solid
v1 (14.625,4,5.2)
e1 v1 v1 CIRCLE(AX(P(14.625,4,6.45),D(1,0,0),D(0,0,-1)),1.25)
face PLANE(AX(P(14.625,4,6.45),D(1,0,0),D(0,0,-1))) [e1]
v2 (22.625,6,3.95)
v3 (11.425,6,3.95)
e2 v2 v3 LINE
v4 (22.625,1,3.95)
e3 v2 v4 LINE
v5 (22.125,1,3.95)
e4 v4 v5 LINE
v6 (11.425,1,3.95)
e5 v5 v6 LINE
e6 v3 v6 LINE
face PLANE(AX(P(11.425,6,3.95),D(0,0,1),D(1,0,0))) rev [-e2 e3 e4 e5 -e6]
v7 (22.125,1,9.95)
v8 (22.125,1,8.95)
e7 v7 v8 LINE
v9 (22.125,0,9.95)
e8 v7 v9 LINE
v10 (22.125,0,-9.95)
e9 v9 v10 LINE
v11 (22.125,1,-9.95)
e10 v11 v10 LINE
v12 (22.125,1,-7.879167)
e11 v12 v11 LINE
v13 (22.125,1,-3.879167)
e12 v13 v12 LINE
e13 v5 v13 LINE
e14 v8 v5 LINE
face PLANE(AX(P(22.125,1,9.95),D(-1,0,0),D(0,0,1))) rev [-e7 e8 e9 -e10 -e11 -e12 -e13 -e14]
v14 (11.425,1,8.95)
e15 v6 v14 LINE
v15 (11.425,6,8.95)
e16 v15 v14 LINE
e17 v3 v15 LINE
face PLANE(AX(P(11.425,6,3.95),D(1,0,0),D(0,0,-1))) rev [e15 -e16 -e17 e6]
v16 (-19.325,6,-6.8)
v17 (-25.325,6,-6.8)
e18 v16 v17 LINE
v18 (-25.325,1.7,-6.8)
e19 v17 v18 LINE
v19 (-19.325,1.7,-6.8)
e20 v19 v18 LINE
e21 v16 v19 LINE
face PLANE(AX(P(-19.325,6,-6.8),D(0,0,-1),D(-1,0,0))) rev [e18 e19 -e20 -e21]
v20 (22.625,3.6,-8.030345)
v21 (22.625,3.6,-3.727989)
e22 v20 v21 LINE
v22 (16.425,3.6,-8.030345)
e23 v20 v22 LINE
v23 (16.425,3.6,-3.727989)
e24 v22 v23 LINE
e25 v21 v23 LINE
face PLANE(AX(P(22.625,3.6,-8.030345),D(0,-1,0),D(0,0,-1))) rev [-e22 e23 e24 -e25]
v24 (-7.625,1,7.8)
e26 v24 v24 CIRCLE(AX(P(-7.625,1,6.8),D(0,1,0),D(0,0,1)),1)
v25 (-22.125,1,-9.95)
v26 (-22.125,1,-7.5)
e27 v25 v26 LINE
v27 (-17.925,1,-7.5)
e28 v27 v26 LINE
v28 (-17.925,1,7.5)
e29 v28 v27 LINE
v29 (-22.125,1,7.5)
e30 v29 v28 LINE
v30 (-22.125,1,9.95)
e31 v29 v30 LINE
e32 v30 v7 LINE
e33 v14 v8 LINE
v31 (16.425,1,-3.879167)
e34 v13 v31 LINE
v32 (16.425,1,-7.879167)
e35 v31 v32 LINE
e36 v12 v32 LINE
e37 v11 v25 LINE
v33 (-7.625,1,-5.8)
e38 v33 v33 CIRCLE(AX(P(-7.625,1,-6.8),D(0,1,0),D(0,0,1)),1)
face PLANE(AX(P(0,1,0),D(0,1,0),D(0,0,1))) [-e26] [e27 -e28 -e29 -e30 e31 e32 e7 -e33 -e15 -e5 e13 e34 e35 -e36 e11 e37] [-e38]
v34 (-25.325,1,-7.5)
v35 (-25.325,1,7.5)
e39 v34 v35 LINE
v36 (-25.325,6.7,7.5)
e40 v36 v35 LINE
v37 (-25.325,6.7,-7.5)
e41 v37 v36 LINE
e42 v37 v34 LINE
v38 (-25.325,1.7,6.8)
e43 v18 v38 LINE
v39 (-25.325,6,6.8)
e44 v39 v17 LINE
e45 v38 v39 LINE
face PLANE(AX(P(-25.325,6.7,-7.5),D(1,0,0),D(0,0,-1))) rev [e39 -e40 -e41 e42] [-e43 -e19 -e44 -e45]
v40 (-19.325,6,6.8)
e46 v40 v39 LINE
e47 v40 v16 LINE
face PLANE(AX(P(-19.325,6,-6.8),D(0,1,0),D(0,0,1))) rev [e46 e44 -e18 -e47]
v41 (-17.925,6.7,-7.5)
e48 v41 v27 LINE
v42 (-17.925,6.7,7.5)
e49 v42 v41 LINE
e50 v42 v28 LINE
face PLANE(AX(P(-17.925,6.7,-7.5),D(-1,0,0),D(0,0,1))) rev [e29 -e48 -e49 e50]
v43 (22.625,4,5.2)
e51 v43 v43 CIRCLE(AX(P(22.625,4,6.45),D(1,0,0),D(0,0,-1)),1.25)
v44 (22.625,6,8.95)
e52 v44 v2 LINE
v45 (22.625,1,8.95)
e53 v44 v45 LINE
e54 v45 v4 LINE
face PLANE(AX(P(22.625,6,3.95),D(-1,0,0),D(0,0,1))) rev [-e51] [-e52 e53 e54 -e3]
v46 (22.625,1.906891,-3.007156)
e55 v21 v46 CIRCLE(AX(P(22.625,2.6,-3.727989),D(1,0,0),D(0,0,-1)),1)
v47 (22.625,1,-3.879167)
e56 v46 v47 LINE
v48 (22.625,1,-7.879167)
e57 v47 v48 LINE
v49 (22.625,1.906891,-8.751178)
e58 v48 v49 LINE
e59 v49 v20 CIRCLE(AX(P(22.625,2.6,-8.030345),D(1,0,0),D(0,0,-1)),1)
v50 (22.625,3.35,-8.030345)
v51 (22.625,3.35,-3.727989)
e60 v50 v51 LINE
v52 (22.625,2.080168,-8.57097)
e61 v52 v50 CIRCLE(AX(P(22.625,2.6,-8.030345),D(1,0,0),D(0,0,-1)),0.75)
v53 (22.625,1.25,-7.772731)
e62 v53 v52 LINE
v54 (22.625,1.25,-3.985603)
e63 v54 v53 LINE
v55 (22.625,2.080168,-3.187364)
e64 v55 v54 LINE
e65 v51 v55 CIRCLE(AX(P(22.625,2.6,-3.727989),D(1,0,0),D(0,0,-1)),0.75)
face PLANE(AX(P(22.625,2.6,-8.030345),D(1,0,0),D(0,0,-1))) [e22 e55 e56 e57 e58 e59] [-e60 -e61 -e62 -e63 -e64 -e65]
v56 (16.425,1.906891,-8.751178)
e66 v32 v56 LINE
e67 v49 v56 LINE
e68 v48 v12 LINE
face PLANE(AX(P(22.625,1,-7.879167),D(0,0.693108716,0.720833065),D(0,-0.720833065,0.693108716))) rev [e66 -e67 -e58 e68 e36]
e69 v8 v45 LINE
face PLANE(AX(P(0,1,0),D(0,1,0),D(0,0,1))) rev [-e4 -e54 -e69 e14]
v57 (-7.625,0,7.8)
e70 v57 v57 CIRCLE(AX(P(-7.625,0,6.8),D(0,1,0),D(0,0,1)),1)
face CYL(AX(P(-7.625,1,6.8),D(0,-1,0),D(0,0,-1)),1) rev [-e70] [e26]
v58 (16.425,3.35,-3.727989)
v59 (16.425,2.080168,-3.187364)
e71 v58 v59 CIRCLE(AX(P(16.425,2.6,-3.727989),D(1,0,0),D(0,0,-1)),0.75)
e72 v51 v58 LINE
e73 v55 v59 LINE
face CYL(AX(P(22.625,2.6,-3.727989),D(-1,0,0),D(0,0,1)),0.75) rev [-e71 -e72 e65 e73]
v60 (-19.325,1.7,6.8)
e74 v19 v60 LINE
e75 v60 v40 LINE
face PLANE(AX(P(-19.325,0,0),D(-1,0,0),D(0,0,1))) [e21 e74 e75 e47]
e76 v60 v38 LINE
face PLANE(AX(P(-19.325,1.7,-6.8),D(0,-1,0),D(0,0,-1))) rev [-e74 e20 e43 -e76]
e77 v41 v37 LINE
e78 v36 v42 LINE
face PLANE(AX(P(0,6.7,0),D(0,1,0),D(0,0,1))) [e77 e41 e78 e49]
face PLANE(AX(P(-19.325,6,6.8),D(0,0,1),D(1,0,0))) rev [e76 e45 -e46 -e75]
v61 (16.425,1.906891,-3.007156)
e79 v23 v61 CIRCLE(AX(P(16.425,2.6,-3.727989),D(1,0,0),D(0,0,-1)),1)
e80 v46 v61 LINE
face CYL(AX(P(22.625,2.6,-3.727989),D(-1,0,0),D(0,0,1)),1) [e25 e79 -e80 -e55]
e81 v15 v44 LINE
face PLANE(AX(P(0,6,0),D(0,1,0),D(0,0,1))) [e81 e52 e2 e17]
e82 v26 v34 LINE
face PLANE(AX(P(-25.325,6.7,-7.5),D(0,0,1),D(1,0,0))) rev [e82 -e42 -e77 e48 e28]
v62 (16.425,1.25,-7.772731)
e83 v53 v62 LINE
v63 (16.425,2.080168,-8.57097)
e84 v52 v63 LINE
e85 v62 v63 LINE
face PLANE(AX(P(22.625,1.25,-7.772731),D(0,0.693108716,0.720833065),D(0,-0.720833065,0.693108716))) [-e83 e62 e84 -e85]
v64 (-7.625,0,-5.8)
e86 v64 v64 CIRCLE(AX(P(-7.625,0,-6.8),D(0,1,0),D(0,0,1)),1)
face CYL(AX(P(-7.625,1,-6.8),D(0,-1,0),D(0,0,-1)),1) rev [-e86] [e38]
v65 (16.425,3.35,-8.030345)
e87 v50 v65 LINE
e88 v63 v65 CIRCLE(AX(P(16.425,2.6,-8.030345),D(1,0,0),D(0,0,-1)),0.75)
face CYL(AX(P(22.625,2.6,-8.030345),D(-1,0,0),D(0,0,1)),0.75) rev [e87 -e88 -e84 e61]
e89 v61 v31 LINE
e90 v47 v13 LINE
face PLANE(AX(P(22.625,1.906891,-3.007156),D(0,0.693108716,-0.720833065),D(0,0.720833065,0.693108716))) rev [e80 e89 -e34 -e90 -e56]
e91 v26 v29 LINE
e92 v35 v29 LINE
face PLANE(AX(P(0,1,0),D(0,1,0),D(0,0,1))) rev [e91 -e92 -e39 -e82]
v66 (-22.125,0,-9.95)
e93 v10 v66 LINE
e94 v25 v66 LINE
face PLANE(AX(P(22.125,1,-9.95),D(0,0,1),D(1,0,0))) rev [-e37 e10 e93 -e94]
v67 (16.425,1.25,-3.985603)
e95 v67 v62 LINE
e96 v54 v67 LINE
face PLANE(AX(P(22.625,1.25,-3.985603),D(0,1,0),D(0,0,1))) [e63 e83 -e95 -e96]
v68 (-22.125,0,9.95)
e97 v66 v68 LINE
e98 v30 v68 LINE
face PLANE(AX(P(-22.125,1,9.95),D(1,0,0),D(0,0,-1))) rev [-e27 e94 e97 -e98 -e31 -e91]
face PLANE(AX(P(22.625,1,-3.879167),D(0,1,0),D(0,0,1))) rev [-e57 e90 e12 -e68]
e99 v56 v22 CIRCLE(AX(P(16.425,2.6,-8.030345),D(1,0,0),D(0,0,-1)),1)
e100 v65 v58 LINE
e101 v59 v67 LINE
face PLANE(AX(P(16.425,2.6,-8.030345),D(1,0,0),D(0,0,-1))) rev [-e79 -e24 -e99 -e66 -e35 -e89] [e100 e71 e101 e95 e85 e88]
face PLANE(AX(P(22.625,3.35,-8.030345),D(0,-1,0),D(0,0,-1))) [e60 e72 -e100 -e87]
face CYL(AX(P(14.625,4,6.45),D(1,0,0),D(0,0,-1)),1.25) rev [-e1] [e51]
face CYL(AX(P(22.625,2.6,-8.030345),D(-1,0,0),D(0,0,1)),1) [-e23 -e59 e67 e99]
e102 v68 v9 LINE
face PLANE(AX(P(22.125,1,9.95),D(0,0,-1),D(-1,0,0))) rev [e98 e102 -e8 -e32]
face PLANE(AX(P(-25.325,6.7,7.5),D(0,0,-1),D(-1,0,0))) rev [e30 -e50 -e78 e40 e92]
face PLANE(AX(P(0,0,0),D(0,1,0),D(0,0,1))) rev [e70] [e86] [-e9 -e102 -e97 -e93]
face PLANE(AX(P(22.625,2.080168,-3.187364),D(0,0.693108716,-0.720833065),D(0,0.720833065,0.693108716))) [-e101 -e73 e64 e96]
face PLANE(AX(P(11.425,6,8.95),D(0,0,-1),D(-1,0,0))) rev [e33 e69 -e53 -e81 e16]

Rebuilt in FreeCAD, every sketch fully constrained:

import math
import FreeCAD as App
import Part
import Sketcher

doc = App.newDocument("Part")
params = doc.addObject("Spreadsheet::Sheet", "Params")
for row, (alias, value) in enumerate([
    ("sketch1_diameter", "2 mm"),
    ("sketch1_height", "19.9 mm"),
    ("sketch1_width", "44.25 mm"),
    ("pad1_length", "1 mm"),
    ("sketch2_height", "15 mm"),
    ("sketch2_width", "7.4 mm"),
    ("pad2_length", "5.7 mm"),
    ("sketch3_width", "4.3 mm"),
    ("sketch3_height", "13.6 mm"),
    ("pocket1_length", "6 mm"),
    ("sketch4_height", "5 mm"),
    ("sketch4_width", "11.2 mm"),
    ("pad3_length", "5 mm"),
    ("sketch5_diameter", "2.5 mm"),
    ("pocket2_length", "8 mm"),
    ("sketch6_radius", "1 mm"),
    ("sketch6_height", "4 mm"),
    ("sketch6_radius2", "0.75 mm"),
    ("pad4_length", "0.5 mm"),
    ("pad4_length2", "5.7 mm"),
], start=1):
    params.set(f"A{row}", alias)
    params.set(f"B{row}", "=" + value)
    params.setAlias(f"B{row}", alias)

body = doc.addObject("PartDesign::Body", "Body")

sketch1 = body.newObject("Sketcher::SketchObject", "Sketch")
sketch1.AttachmentSupport = (doc.getObject("XZ_Plane"), [""])
sketch1.MapMode = "FlatFace"
sketch1.addGeometry(Part.LineSegment(App.Vector(-22.1, -9.9, 0), App.Vector(-22.1, 9.9, 0)), False)
sketch1.addGeometry(Part.LineSegment(App.Vector(-22.1, 9.9, 0), App.Vector(22.1, 9.9, 0)), False)
sketch1.addGeometry(Part.LineSegment(App.Vector(22.1, 9.9, 0), App.Vector(22.1, -9.9, 0)), False)
sketch1.addGeometry(Part.LineSegment(App.Vector(22.1, -9.9, 0), App.Vector(-22.1, -9.9, 0)), False)
sketch1.addGeometry(Part.Circle(App.Vector(-7.6, 6.8, 0), App.Vector(0, 0, 1), 1), False)
sketch1.addGeometry(Part.Circle(App.Vector(-7.6, -6.8, 0), App.Vector(0, 0, 1), 1), False)
sketch1.addConstraint(Sketcher.Constraint("Coincident", 0, 2, 1, 1))
sketch1.addConstraint(Sketcher.Constraint("Coincident", 1, 2, 2, 1))
sketch1.addConstraint(Sketcher.Constraint("Coincident", 2, 2, 3, 1))
sketch1.addConstraint(Sketcher.Constraint("Coincident", 3, 2, 0, 1))
sketch1.addConstraint(Sketcher.Constraint("Vertical", 0))
sketch1.addConstraint(Sketcher.Constraint("Horizontal", 1))
sketch1.addConstraint(Sketcher.Constraint("Vertical", 2))
sketch1.addConstraint(Sketcher.Constraint("Horizontal", 3))
sketch1.addConstraint(Sketcher.Constraint("Equal", 4, 5))
sketch1.addConstraint(Sketcher.Constraint("Symmetric", 0, 2, 2, 2, -1, 1))
sketch1.addConstraint(Sketcher.Constraint("Symmetric", 4, 3, 5, 3, -1))
sketch1.addConstraint(Sketcher.Constraint("Diameter", 4, 2.0))
sketch1.addConstraint(Sketcher.Constraint("DistanceY", 0, 1, 0, 2, 19.9))
sketch1.addConstraint(Sketcher.Constraint("DistanceX", 1, 1, 1, 2, 44.25))
sketch1.addConstraint(Sketcher.Constraint("DistanceY", -1, 1, 4, 3, 6.8))
sketch1.addConstraint(Sketcher.Constraint("DistanceX", 0, 2, 4, 3, 14.5))
sketch1.setExpression("Constraints[11]", "Params.sketch1_diameter")
sketch1.setExpression("Constraints[12]", "Params.sketch1_height")
sketch1.setExpression("Constraints[13]", "Params.sketch1_width")
pad1 = body.newObject("PartDesign::Pad", "Pad")
pad1.Profile = sketch1
pad1.setExpression("Length", "Params.pad1_length")
pad1.Reversed = True

sketch2 = body.newObject("Sketcher::SketchObject", "Sketch001")
sketch2.AttachmentSupport = (doc.getObject("XZ_Plane"), [""])
sketch2.MapMode = "FlatFace"
sketch2.AttachmentOffset = App.Placement(App.Vector(0, 0, -1), App.Rotation())
sketch2.addGeometry(Part.LineSegment(App.Vector(-25, -8, 0), App.Vector(-25, 8, 0)), False)
sketch2.addGeometry(Part.LineSegment(App.Vector(-25, 8, 0), App.Vector(-18, 8, 0)), False)
sketch2.addGeometry(Part.LineSegment(App.Vector(-18, 8, 0), App.Vector(-18, -8, 0)), False)
sketch2.addGeometry(Part.LineSegment(App.Vector(-18, -8, 0), App.Vector(-25, -8, 0)), False)
sketch2.addConstraint(Sketcher.Constraint("Coincident", 0, 2, 1, 1))
sketch2.addConstraint(Sketcher.Constraint("Coincident", 1, 2, 2, 1))
sketch2.addConstraint(Sketcher.Constraint("Coincident", 2, 2, 3, 1))
sketch2.addConstraint(Sketcher.Constraint("Coincident", 3, 2, 0, 1))
sketch2.addConstraint(Sketcher.Constraint("Vertical", 0))
sketch2.addConstraint(Sketcher.Constraint("Horizontal", 1))
sketch2.addConstraint(Sketcher.Constraint("Vertical", 2))
sketch2.addConstraint(Sketcher.Constraint("Horizontal", 3))
sketch2.addConstraint(Sketcher.Constraint("DistanceY", 0, 1, 0, 2, 15.0))
sketch2.addConstraint(Sketcher.Constraint("DistanceX", 1, 1, 1, 2, 7.4))
sketch2.addConstraint(Sketcher.Constraint("DistanceY", -1, 1, 0, 2, 7.5))
sketch2.addConstraint(Sketcher.Constraint("DistanceX", 0, 2, -1, 1, 25.325))
sketch2.setExpression("Constraints[8]", "Params.sketch2_height")
sketch2.setExpression("Constraints[9]", "Params.sketch2_width")
pad2 = body.newObject("PartDesign::Pad", "Pad001")
pad2.Profile = sketch2
pad2.setExpression("Length", "Params.pad2_length")
pad2.Reversed = True

sketch3 = body.newObject("Sketcher::SketchObject", "Sketch002")
sketch3.AttachmentSupport = (doc.getObject("YZ_Plane"), [""])
sketch3.MapMode = "FlatFace"
sketch3.AttachmentOffset = App.Placement(App.Vector(0, 0, -25.325), App.Rotation())
sketch3.addGeometry(Part.LineSegment(App.Vector(6, -6.8, 0), App.Vector(1.7, -6.8, 0)), False)
sketch3.addGeometry(Part.LineSegment(App.Vector(1.7, -6.8, 0), App.Vector(1.7, 6.8, 0)), False)
sketch3.addGeometry(Part.LineSegment(App.Vector(1.7, 6.8, 0), App.Vector(6, 6.8, 0)), False)
sketch3.addGeometry(Part.LineSegment(App.Vector(6, 6.8, 0), App.Vector(6, -6.8, 0)), False)
sketch3.addConstraint(Sketcher.Constraint("Coincident", 0, 2, 1, 1))
sketch3.addConstraint(Sketcher.Constraint("Coincident", 1, 2, 2, 1))
sketch3.addConstraint(Sketcher.Constraint("Coincident", 2, 2, 3, 1))
sketch3.addConstraint(Sketcher.Constraint("Coincident", 3, 2, 0, 1))
sketch3.addConstraint(Sketcher.Constraint("Horizontal", 0))
sketch3.addConstraint(Sketcher.Constraint("Vertical", 1))
sketch3.addConstraint(Sketcher.Constraint("Horizontal", 2))
sketch3.addConstraint(Sketcher.Constraint("Vertical", 3))
sketch3.addConstraint(Sketcher.Constraint("DistanceX", 0, 2, 0, 1, 4.3))
sketch3.addConstraint(Sketcher.Constraint("DistanceY", 1, 1, 1, 2, 13.6))
sketch3.addConstraint(Sketcher.Constraint("DistanceX", -1, 1, 2, 2, 6.0))
sketch3.addConstraint(Sketcher.Constraint("DistanceY", 0, 2, -1, 1, 6.8))
sketch3.setExpression("Constraints[8]", "Params.sketch3_width")
sketch3.setExpression("Constraints[9]", "Params.sketch3_height")
pocket1 = body.newObject("PartDesign::Pocket", "Pocket")
pocket1.Profile = sketch3
pocket1.setExpression("Length", "Params.pocket1_length")
pocket1.Reversed = True

sketch4 = body.newObject("Sketcher::SketchObject", "Sketch003")
sketch4.AttachmentSupport = (doc.getObject("XZ_Plane"), [""])
sketch4.MapMode = "FlatFace"
sketch4.AttachmentOffset = App.Placement(App.Vector(0, 0, -1), App.Rotation())
sketch4.addGeometry(Part.LineSegment(App.Vector(11.4, 4, 0), App.Vector(11.4, 8.9, 0)), False)
sketch4.addGeometry(Part.LineSegment(App.Vector(11.4, 8.9, 0), App.Vector(22.6, 8.9, 0)), False)
sketch4.addGeometry(Part.LineSegment(App.Vector(22.6, 8.9, 0), App.Vector(22.6, 4, 0)), False)
sketch4.addGeometry(Part.LineSegment(App.Vector(22.6, 4, 0), App.Vector(11.4, 4, 0)), False)
sketch4.addConstraint(Sketcher.Constraint("Coincident", 0, 2, 1, 1))
sketch4.addConstraint(Sketcher.Constraint("Coincident", 1, 2, 2, 1))
sketch4.addConstraint(Sketcher.Constraint("Coincident", 2, 2, 3, 1))
sketch4.addConstraint(Sketcher.Constraint("Coincident", 3, 2, 0, 1))
sketch4.addConstraint(Sketcher.Constraint("Vertical", 0))
sketch4.addConstraint(Sketcher.Constraint("Horizontal", 1))
sketch4.addConstraint(Sketcher.Constraint("Vertical", 2))
sketch4.addConstraint(Sketcher.Constraint("Horizontal", 3))
sketch4.addConstraint(Sketcher.Constraint("DistanceY", 0, 1, 0, 2, 5.0))
sketch4.addConstraint(Sketcher.Constraint("DistanceX", 1, 1, 1, 2, 11.2))
sketch4.addConstraint(Sketcher.Constraint("DistanceY", -1, 1, 0, 2, 8.95))
sketch4.addConstraint(Sketcher.Constraint("DistanceX", -1, 1, 0, 2, 11.425))
sketch4.setExpression("Constraints[8]", "Params.sketch4_height")
sketch4.setExpression("Constraints[9]", "Params.sketch4_width")
pad3 = body.newObject("PartDesign::Pad", "Pad002")
pad3.Profile = sketch4
pad3.setExpression("Length", "Params.pad3_length")
pad3.Reversed = True

sketch5 = body.newObject("Sketcher::SketchObject", "Sketch004")
sketch5.AttachmentSupport = (doc.getObject("YZ_Plane"), [""])
sketch5.MapMode = "FlatFace"
sketch5.AttachmentOffset = App.Placement(App.Vector(0, 0, 22.625), App.Rotation())
sketch5.addGeometry(Part.Circle(App.Vector(4, 6.5, 0), App.Vector(0, 0, 1), 1.2), False)
sketch5.addConstraint(Sketcher.Constraint("Diameter", 0, 2.5))
sketch5.addConstraint(Sketcher.Constraint("DistanceX", -1, 1, 0, 3, 4.0))
sketch5.addConstraint(Sketcher.Constraint("DistanceY", -1, 1, 0, 3, 6.45))
sketch5.setExpression("Constraints[0]", "Params.sketch5_diameter")
pocket2 = body.newObject("PartDesign::Pocket", "Pocket001")
pocket2.Profile = sketch5
pocket2.setExpression("Length", "Params.pocket2_length")

sketch6 = body.newObject("Sketcher::SketchObject", "Sketch005")
sketch6.AttachmentSupport = (doc.getObject("YZ_Plane"), [""])
sketch6.MapMode = "FlatFace"
sketch6.AttachmentOffset = App.Placement(App.Vector(0, 0, 22.125), App.Rotation())
sketch6.addGeometry(Part.LineSegment(App.Vector(1, -3.9, 0), App.Vector(1, -7.9, 0)), False)
sketch6.addGeometry(Part.LineSegment(App.Vector(1, -7.9, 0), App.Vector(1.9, -8.8, 0)), False)
sketch6.addGeometry(Part.ArcOfCircle(Part.Circle(App.Vector(2.6, -8, 0), App.Vector(0, 0, 1), 1), math.radians(-134), math.radians(0)), False)
sketch6.addGeometry(Part.LineSegment(App.Vector(3.6, -8, 0), App.Vector(3.6, -3.7, 0)), False)
sketch6.addGeometry(Part.ArcOfCircle(Part.Circle(App.Vector(2.6, -3.7, 0), App.Vector(0, 0, 1), 1), math.radians(0), math.radians(134)), False)
sketch6.addGeometry(Part.LineSegment(App.Vector(1.9, -3, 0), App.Vector(1, -3.9, 0)), False)
sketch6.addGeometry(Part.LineSegment(App.Vector(1.2, -7.8, 0), App.Vector(1.2, -4, 0)), False)
sketch6.addGeometry(Part.LineSegment(App.Vector(1.2, -4, 0), App.Vector(2.1, -3.2, 0)), False)
sketch6.addGeometry(Part.ArcOfCircle(Part.Circle(App.Vector(2.6, -3.7, 0), App.Vector(0, 0, 1), 0.8), math.radians(0), math.radians(134)), False)
sketch6.addGeometry(Part.LineSegment(App.Vector(3.4, -3.7, 0), App.Vector(3.4, -8, 0)), False)
sketch6.addGeometry(Part.ArcOfCircle(Part.Circle(App.Vector(2.6, -8, 0), App.Vector(0, 0, 1), 0.8), math.radians(-134), math.radians(0)), False)
sketch6.addGeometry(Part.LineSegment(App.Vector(2.1, -8.6, 0), App.Vector(1.2, -7.8, 0)), False)
sketch6.addConstraint(Sketcher.Constraint("Coincident", 0, 2, 1, 1))
sketch6.addConstraint(Sketcher.Constraint("Tangent", 1, 2, 2, 1))
sketch6.addConstraint(Sketcher.Constraint("Tangent", 2, 2, 3, 1))
sketch6.addConstraint(Sketcher.Constraint("Tangent", 3, 2, 4, 1))
sketch6.addConstraint(Sketcher.Constraint("Tangent", 4, 2, 5, 1))
sketch6.addConstraint(Sketcher.Constraint("Coincident", 5, 2, 0, 1))
sketch6.addConstraint(Sketcher.Constraint("Coincident", 6, 2, 7, 1))
sketch6.addConstraint(Sketcher.Constraint("Tangent", 7, 2, 8, 2))
sketch6.addConstraint(Sketcher.Constraint("Tangent", 8, 1, 9, 1))
sketch6.addConstraint(Sketcher.Constraint("Tangent", 9, 2, 10, 2))
sketch6.addConstraint(Sketcher.Constraint("Tangent", 10, 1, 11, 1))
sketch6.addConstraint(Sketcher.Constraint("Coincident", 11, 2, 6, 1))
sketch6.addConstraint(Sketcher.Constraint("Vertical", 0))
sketch6.addConstraint(Sketcher.Constraint("Vertical", 3))
sketch6.addConstraint(Sketcher.Constraint("Vertical", 6))
sketch6.addConstraint(Sketcher.Constraint("Vertical", 9))
sketch6.addConstraint(Sketcher.Constraint("Coincident", 8, 3, 4, 3))
sketch6.addConstraint(Sketcher.Constraint("Coincident", 10, 3, 2, 3))
sketch6.addConstraint(Sketcher.Constraint("Equal", 2, 4))
sketch6.addConstraint(Sketcher.Constraint("Parallel", 5, 7))
sketch6.addConstraint(Sketcher.Constraint("Parallel", 1, 11))
sketch6.addConstraint(Sketcher.Constraint("Vertical", 1, 2, 4, 2))
sketch6.addConstraint(Sketcher.Constraint("Radius", 2, 1.0))
sketch6.addConstraint(Sketcher.Constraint("DistanceY", 0, 2, 0, 1, 4.0))
sketch6.addConstraint(Sketcher.Constraint("Radius", 8, 0.75))
sketch6.addConstraint(Sketcher.Constraint("DistanceX", -1, 1, 0, 2, 1.0))
sketch6.addConstraint(Sketcher.Constraint("DistanceX", -1, 1, 2, 3, 2.6))
sketch6.addConstraint(Sketcher.Constraint("DistanceX", -1, 1, 6, 2, 1.25))
sketch6.addConstraint(Sketcher.Constraint("Distance", 7, 1.151679))
sketch6.addConstraint(Sketcher.Constraint("DistanceY", 4, 3, -1, 1, 3.727989))
sketch6.setExpression("Constraints[22]", "Params.sketch6_radius")
sketch6.setExpression("Constraints[23]", "Params.sketch6_height")
sketch6.setExpression("Constraints[24]", "Params.sketch6_radius2")
pad4 = body.newObject("PartDesign::Pad", "Pad003")
pad4.Profile = sketch6
pad4.Type = "TwoLengths"
pad4.setExpression("Length", "Params.pad4_length")
pad4.setExpression("Length2", "Params.pad4_length2")

doc.recompute()
